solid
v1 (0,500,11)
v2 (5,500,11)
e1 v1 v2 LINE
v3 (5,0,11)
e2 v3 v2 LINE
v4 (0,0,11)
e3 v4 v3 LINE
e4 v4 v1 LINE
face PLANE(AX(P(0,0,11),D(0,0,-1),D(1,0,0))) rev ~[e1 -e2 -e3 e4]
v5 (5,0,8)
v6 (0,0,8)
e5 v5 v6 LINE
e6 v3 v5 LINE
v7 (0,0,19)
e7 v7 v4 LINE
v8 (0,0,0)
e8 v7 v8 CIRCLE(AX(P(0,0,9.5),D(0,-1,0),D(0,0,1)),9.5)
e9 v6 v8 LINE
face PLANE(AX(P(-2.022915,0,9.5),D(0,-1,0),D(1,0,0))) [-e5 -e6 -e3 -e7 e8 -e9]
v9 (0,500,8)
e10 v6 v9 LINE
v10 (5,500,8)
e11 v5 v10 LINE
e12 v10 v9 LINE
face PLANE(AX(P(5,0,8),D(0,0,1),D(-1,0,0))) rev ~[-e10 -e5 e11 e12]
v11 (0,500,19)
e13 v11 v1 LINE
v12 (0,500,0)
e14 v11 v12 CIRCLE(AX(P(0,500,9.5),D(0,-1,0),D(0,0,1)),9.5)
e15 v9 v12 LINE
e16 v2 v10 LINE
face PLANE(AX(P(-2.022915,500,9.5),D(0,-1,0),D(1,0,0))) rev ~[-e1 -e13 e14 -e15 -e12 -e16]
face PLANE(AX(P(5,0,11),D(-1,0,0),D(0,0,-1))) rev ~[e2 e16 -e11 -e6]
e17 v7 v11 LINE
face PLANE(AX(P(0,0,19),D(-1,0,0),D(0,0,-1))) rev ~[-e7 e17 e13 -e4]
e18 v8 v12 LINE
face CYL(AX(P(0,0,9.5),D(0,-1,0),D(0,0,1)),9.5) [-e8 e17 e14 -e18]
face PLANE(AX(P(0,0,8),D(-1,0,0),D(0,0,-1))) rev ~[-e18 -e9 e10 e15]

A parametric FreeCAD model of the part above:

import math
import FreeCAD as App
import Part
import Sketcher

doc = App.newDocument("Part")
body = doc.addObject("PartDesign::Body", "Body")

sketch1 = body.newObject("Sketcher::SketchObject", "Sketch")
sketch1.AttachmentSupport = (doc.getObject("XZ_Plane"), [""])
sketch1.MapMode = "FlatFace"
sketch1.addGeometry([
    Part.ArcOfCircle(Part.Circle(App.Vector(0, 9.5, 0), App.Vector(0, 0, 1), 9.5), math.radians(90), math.radians(270)),
    Part.LineSegment(App.Vector(0, 0, 0), App.Vector(0, 8, 0)),
    Part.LineSegment(App.Vector(0, 8, 0), App.Vector(5, 8, 0)),
    Part.LineSegment(App.Vector(5, 8, 0), App.Vector(5, 11, 0)),
    Part.LineSegment(App.Vector(5, 11, 0), App.Vector(0, 11, 0)),
    Part.LineSegment(App.Vector(0, 11, 0), App.Vector(0, 19, 0)),
], False)
sketch1.addConstraint([
    Sketcher.Constraint("Coincident", 0, 2, 1, 1),
    Sketcher.Constraint("Coincident", 1, 2, 2, 1),
    Sketcher.Constraint("Coincident", 2, 2, 3, 1),
    Sketcher.Constraint("Coincident", 3, 2, 4, 1),
    Sketcher.Constraint("Coincident", 4, 2, 5, 1),
    Sketcher.Constraint("Coincident", 5, 2, 0, 1),
    Sketcher.Constraint("Vertical", 1),
    Sketcher.Constraint("Horizontal", 2),
    Sketcher.Constraint("Vertical", 3),
    Sketcher.Constraint("Horizontal", 4),
    Sketcher.Constraint("Vertical", 5),
    Sketcher.Constraint("Coincident", 0, 2, -1, 1),
    Sketcher.Constraint("PointOnObject", 0, 3, -2),
    Sketcher.Constraint("PointOnObject", 4, 2, -2),
    Sketcher.Constraint("Equal", 1, 5),
    Sketcher.Constraint("Radius", 0, 9.5),
    Sketcher.Constraint("DistanceX", 2, 1, 2, 2, 5.0),
    Sketcher.Constraint("DistanceY", 1, 1, 1, 2, 8.0),
])
pad1 = body.newObject("PartDesign::Pad", "Pad")
pad1.Profile = sketch1
pad1.Length = 500
pad1.Reversed = True

doc.recompute()
